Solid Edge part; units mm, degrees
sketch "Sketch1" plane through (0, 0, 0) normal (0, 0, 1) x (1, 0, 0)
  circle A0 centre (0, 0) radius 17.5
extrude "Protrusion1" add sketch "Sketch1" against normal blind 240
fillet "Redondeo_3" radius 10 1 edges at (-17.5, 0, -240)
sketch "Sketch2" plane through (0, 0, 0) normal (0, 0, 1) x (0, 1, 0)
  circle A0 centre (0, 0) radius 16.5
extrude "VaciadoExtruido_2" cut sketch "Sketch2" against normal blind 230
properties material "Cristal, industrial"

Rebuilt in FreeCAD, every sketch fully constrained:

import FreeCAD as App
import Part
import Sketcher


def edges_at(feature, points):
    """Names of the edges that pass closest to the given points."""
    edges = feature.Shape.Edges
    near = lambda p: min(range(len(edges)), key=lambda i: edges[i].distToShape(Part.Vertex(*p))[0])
    return sorted({f"Edge{near(p) + 1}" for p in points})

doc = App.newDocument("Part")
body = doc.addObject("PartDesign::Body", "Body")

# Sketch on XY plane
sketch1 = body.newObject("Sketcher::SketchObject", "Sketch")
sketch1.AttachmentSupport = (doc.getObject("XY_Plane"), [""])
sketch1.MapMode = "FlatFace"
sketch1.addGeometry(Part.Circle(App.Vector(0, 0, 0), App.Vector(0, 0, 1), 17.5), False)
sketch1.addConstraint(Sketcher.Constraint("Coincident", 0, 3, -1, 1))
sketch1.addConstraint(Sketcher.Constraint("Diameter", 0, 35.0))
pad1 = body.newObject("PartDesign::Pad", "Pad")
pad1.Profile = sketch1
pad1.Length = 240
pad1.Reversed = True
doc.recompute()

fillet = body.newObject("PartDesign::Fillet", "Fillet")
fillet.Base = (pad1, edges_at(pad1, [(-17.5, 0, -240)]))
fillet.Radius = 10

# Sketch on XY plane
sketch2 = body.newObject("Sketcher::SketchObject", "Sketch001")
sketch2.AttachmentSupport = (doc.getObject("XY_Plane"), [""])
sketch2.MapMode = "FlatFace"
sketch2.addGeometry(Part.Circle(App.Vector(0, 0, 0), App.Vector(0, 0, 1), 16.5), False)
sketch2.addConstraint(Sketcher.Constraint("Coincident", 0, 3, -1, 1))
sketch2.addConstraint(Sketcher.Constraint("Diameter", 0, 33.0))
pocket1 = body.newObject("PartDesign::Pocket", "Pocket")
pocket1.Profile = sketch2
pocket1.Length = 230

doc.recompute()
